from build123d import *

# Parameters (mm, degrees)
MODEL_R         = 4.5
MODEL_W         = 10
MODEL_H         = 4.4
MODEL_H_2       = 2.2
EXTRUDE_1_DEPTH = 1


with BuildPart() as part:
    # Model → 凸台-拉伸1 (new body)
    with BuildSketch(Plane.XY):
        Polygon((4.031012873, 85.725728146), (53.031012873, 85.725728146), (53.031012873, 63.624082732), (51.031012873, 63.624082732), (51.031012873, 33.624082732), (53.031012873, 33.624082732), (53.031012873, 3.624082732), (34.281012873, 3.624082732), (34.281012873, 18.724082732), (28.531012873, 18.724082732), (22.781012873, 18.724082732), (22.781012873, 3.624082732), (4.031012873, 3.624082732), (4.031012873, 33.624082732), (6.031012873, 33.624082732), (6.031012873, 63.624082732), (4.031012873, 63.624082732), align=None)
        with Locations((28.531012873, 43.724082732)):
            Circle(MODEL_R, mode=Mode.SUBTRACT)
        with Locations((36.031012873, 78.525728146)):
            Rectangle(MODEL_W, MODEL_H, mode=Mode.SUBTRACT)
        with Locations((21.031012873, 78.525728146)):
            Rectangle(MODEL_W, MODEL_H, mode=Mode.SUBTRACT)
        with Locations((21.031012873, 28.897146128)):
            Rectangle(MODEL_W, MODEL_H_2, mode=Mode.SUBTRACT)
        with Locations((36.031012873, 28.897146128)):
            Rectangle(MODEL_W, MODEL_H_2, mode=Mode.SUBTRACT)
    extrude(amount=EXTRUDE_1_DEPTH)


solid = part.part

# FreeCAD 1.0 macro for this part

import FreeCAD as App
import Part
import Sketcher
from FreeCAD import Vector

doc = App.newDocument("Part")
body = doc.addObject("PartDesign::Body", "Body")

# Sketch on XY plane
sketch1 = body.newObject("Sketcher::SketchObject", "Sketch")
sketch1.AttachmentSupport = (doc.getObject("XY_Plane"), [""])
sketch1.MapMode = "FlatFace"
sketch1.addGeometry([
    Part.LineSegment(Vector(53.031013, 85.725728, 0), Vector(4.031013, 85.725728, 0)),  # 0
    Part.LineSegment(Vector(4.031013, 85.725728, 0), Vector(4.031013, 63.624083, 0)),  # 1
    Part.LineSegment(Vector(4.031013, 63.624083, 0), Vector(6.031013, 63.624083, 0)),  # 2
    Part.LineSegment(Vector(6.031013, 63.624083, 0), Vector(6.031013, 33.624083, 0)),  # 3
    Part.LineSegment(Vector(6.031013, 33.624083, 0), Vector(4.031013, 33.624083, 0)),  # 4
    Part.LineSegment(Vector(4.031013, 33.624083, 0), Vector(4.031013, 3.624083, 0)),  # 5
    Part.LineSegment(Vector(4.031013, 3.624083, 0), Vector(22.781013, 3.624083, 0)),  # 6
    Part.LineSegment(Vector(22.781013, 3.624083, 0), Vector(22.781013, 18.724083, 0)),  # 7
    Part.LineSegment(Vector(22.781013, 18.724083, 0), Vector(34.281013, 18.724083, 0)),  # 8
    Part.LineSegment(Vector(34.281013, 18.724083, 0), Vector(34.281013, 3.624083, 0)),  # 9
    Part.LineSegment(Vector(34.281013, 3.624083, 0), Vector(53.031013, 3.624083, 0)),  # 10
    Part.LineSegment(Vector(53.031013, 3.624083, 0), Vector(53.031013, 33.624083, 0)),  # 11
    Part.LineSegment(Vector(53.031013, 33.624083, 0), Vector(51.031013, 33.624083, 0)),  # 12
    Part.LineSegment(Vector(51.031013, 33.624083, 0), Vector(51.031013, 63.624083, 0)),  # 13
    Part.LineSegment(Vector(51.031013, 63.624083, 0), Vector(53.031013, 63.624083, 0)),  # 14
    Part.LineSegment(Vector(53.031013, 63.624083, 0), Vector(53.031013, 85.725728, 0)),  # 15
    Part.LineSegment(Vector(31.031013, 27.797146, 0), Vector(31.031013, 29.997146, 0)),  # 16
    Part.LineSegment(Vector(31.031013, 29.997146, 0), Vector(41.031013, 29.997146, 0)),  # 17
    Part.LineSegment(Vector(41.031013, 29.997146, 0), Vector(41.031013, 27.797146, 0)),  # 18
    Part.LineSegment(Vector(41.031013, 27.797146, 0), Vector(31.031013, 27.797146, 0)),  # 19
    Part.LineSegment(Vector(16.031013, 27.797146, 0), Vector(16.031013, 29.997146, 0)),  # 20
    Part.LineSegment(Vector(16.031013, 29.997146, 0), Vector(26.031013, 29.997146, 0)),  # 21
    Part.LineSegment(Vector(26.031013, 29.997146, 0), Vector(26.031013, 27.797146, 0)),  # 22
    Part.LineSegment(Vector(26.031013, 27.797146, 0), Vector(16.031013, 27.797146, 0)),  # 23
    Part.Circle(Vector(28.531013, 43.724083, 0), Vector(0, 0, 1), 4.5),  # 24
    Part.LineSegment(Vector(31.031013, 76.325728, 0), Vector(31.031013, 80.725728, 0)),  # 25
    Part.LineSegment(Vector(31.031013, 80.725728, 0), Vector(41.031013, 80.725728, 0)),  # 26
    Part.LineSegment(Vector(41.031013, 80.725728, 0), Vector(41.031013, 76.325728, 0)),  # 27
    Part.LineSegment(Vector(41.031013, 76.325728, 0), Vector(31.031013, 76.325728, 0)),  # 28
    Part.LineSegment(Vector(16.031013, 76.325728, 0), Vector(16.031013, 80.725728, 0)),  # 29
    Part.LineSegment(Vector(16.031013, 80.725728, 0), Vector(26.031013, 80.725728, 0)),  # 30
    Part.LineSegment(Vector(26.031013, 80.725728, 0), Vector(26.031013, 76.325728, 0)),  # 31
    Part.LineSegment(Vector(26.031013, 76.325728, 0), Vector(16.031013, 76.325728, 0)),  # 32
], False)
sketch1.addConstraint([
    Sketcher.Constraint("Coincident", 0, 2, 1, 1),
    Sketcher.Constraint("Coincident", 1, 2, 2, 1),
    Sketcher.Constraint("Coincident", 2, 2, 3, 1),
    Sketcher.Constraint("Coincident", 3, 2, 4, 1),
    Sketcher.Constraint("Coincident", 4, 2, 5, 1),
    Sketcher.Constraint("Coincident", 5, 2, 6, 1),
    Sketcher.Constraint("Coincident", 6, 2, 7, 1),
    Sketcher.Constraint("Coincident", 7, 2, 8, 1),
    Sketcher.Constraint("Coincident", 8, 2, 9, 1),
    Sketcher.Constraint("Coincident", 9, 2, 10, 1),
    Sketcher.Constraint("Coincident", 10, 2, 11, 1),
    Sketcher.Constraint("Coincident", 11, 2, 12, 1),
    Sketcher.Constraint("Coincident", 12, 2, 13, 1),
    Sketcher.Constraint("Coincident", 13, 2, 14, 1),
    Sketcher.Constraint("Coincident", 14, 2, 15, 1),
    Sketcher.Constraint("Coincident", 15, 2, 0, 1),
    Sketcher.Constraint("Coincident", 16, 2, 17, 1),
    Sketcher.Constraint("Coincident", 17, 2, 18, 1),
    Sketcher.Constraint("Coincident", 18, 2, 19, 1),
    Sketcher.Constraint("Coincident", 19, 2, 16, 1),
    Sketcher.Constraint("Coincident", 20, 2, 21, 1),
    Sketcher.Constraint("Coincident", 21, 2, 22, 1),
    Sketcher.Constraint("Coincident", 22, 2, 23, 1),
    Sketcher.Constraint("Coincident", 23, 2, 20, 1),
    Sketcher.Constraint("Coincident", 25, 2, 26, 1),
    Sketcher.Constraint("Coincident", 26, 2, 27, 1),
    Sketcher.Constraint("Coincident", 27, 2, 28, 1),
    Sketcher.Constraint("Coincident", 28, 2, 25, 1),
    Sketcher.Constraint("Coincident", 29, 2, 30, 1),
    Sketcher.Constraint("Coincident", 30, 2, 31, 1),
    Sketcher.Constraint("Coincident", 31, 2, 32, 1),
    Sketcher.Constraint("Coincident", 32, 2, 29, 1),
    Sketcher.Constraint("Horizontal", 0),
    Sketcher.Constraint("Vertical", 1),
    Sketcher.Constraint("Horizontal", 2),
    Sketcher.Constraint("Vertical", 3),
    Sketcher.Constraint("Horizontal", 4),
    Sketcher.Constraint("Vertical", 5),
    Sketcher.Constraint("Horizontal", 6),
    Sketcher.Constraint("Vertical", 7),
    Sketcher.Constraint("Horizontal", 8),
    Sketcher.Constraint("Vertical", 9),
    Sketcher.Constraint("Horizontal", 10),
    Sketcher.Constraint("Vertical", 11),
    Sketcher.Constraint("Horizontal", 12),
    Sketcher.Constraint("Vertical", 13),
    Sketcher.Constraint("Horizontal", 14),
    Sketcher.Constraint("Vertical", 15),
    Sketcher.Constraint("Vertical", 16),
    Sketcher.Constraint("Horizontal", 17),
    Sketcher.Constraint("Vertical", 18),
    Sketcher.Constraint("Horizontal", 19),
    Sketcher.Constraint("Vertical", 20),
    Sketcher.Constraint("Horizontal", 21),
    Sketcher.Constraint("Vertical", 22),
    Sketcher.Constraint("Horizontal", 23),
    Sketcher.Constraint("Vertical", 25),
    Sketcher.Constraint("Horizontal", 26),
    Sketcher.Constraint("Vertical", 27),
    Sketcher.Constraint("Horizontal", 28),
    Sketcher.Constraint("Vertical", 29),
    Sketcher.Constraint("Horizontal", 30),
    Sketcher.Constraint("Vertical", 31),
    Sketcher.Constraint("Horizontal", 32),
    Sketcher.Constraint("Horizontal", 6, 2, 9, 2),
    Sketcher.Constraint("Horizontal", 4, 2, 11, 2),
    Sketcher.Constraint("Horizontal", 2, 2, 13, 2),
    Sketcher.Constraint("Horizontal", 17, 2, 20, 2),
    Sketcher.Constraint("Horizontal", 19, 2, 22, 2),
    Sketcher.Constraint("Horizontal", 26, 2, 29, 2),
    Sketcher.Constraint("Horizontal", 28, 2, 31, 2),
    Sketcher.Constraint("Vertical", 1, 2, 4, 2),
    Sketcher.Constraint("Vertical", 11, 2, 14, 2),
    Sketcher.Constraint("Vertical", 19, 2, 25, 2),
    Sketcher.Constraint("Vertical", 18, 2, 26, 2),
    Sketcher.Constraint("Vertical", 23, 2, 29, 2),
    Sketcher.Constraint("Vertical", 22, 2, 30, 2),
    Sketcher.Constraint("Equal", 6, 10),
    Sketcher.Constraint("Equal", 4, 12),
    Sketcher.Constraint("Equal", 19, 21),
    Sketcher.Constraint("Equal", 3, 5),
    Sketcher.Constraint("Diameter", 24, 9.0),
    Sketcher.Constraint("DistanceX", 0, 2, 0, 1, 49.0),
    Sketcher.Constraint("DistanceX", 2, 1, 2, 2, 2.0),
    Sketcher.Constraint("DistanceX", 17, 1, 17, 2, 10.0),
    Sketcher.Constraint("DistanceY", 3, 2, 3, 1, 30.0),
    Sketcher.Constraint("DistanceX", 8, 1, 8, 2, 11.5),
    Sketcher.Constraint("DistanceY", 7, 1, 7, 2, 15.1),
    Sketcher.Constraint("DistanceY", 16, 1, 16, 2, 2.2),
    Sketcher.Constraint("DistanceY", 25, 1, 25, 2, 4.4),
    Sketcher.Constraint("DistanceY", 7, 2, 24, 3, 25.0),
    Sketcher.Constraint("DistanceX", 16, 2, 12, 2, 20.0),
    Sketcher.Constraint("DistanceX", 3, 2, 20, 2, 10.0),
    Sketcher.Constraint("DistanceY", 25, 2, 15, 2, 5.0),
    Sketcher.Constraint("DistanceX", 0, 2, 24, 3, 24.5),
    Sketcher.Constraint("DistanceY", 1, 2, 1, 1, 22.101645),
    Sketcher.Constraint("DistanceY", -1, 1, 0, 2, 85.725728),
    Sketcher.Constraint("DistanceX", -1, 1, 24, 3, 28.531013),
    Sketcher.Constraint("DistanceY", -1, 1, 16, 2, 29.997146),
])
pad1 = body.newObject("PartDesign::Pad", "Pad")
pad1.Profile = sketch1
pad1.Length = 1

doc.recompute()
